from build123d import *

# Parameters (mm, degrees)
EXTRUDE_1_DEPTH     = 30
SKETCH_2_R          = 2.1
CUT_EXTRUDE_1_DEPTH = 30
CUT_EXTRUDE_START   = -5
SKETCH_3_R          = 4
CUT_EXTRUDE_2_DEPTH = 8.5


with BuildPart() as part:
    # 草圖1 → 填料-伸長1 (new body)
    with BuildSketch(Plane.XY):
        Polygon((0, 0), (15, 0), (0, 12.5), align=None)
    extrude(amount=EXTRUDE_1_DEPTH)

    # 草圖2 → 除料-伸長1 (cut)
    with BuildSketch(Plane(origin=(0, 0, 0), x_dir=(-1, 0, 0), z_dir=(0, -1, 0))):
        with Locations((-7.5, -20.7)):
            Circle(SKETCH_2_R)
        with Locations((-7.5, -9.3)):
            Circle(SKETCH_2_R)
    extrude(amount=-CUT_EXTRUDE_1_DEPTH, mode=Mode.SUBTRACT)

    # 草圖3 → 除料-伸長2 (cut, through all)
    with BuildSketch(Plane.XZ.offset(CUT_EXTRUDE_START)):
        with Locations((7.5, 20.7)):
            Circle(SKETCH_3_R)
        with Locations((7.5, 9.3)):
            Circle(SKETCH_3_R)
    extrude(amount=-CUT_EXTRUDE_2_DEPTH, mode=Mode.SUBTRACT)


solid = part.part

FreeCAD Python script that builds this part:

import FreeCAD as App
import Part
import Sketcher

doc = App.newDocument("Part")
body = doc.addObject("PartDesign::Body", "Body")

# Sketch on XY plane
sketch1 = body.newObject("Sketcher::SketchObject", "Sketch")
sketch1.AttachmentSupport = (doc.getObject("XY_Plane"), [""])
sketch1.MapMode = "FlatFace"
sketch1.addGeometry([
    Part.LineSegment(App.Vector(0, 0, 0), App.Vector(15, 0, 0)),
    Part.LineSegment(App.Vector(15, 0, 0), App.Vector(0, 12, 0)),
    Part.LineSegment(App.Vector(0, 12, 0), App.Vector(0, 0, 0)),
], False)
sketch1.addConstraint([
    Sketcher.Constraint("Coincident", 0, 2, 1, 1),
    Sketcher.Constraint("Coincident", 1, 2, 2, 1),
    Sketcher.Constraint("Coincident", 2, 2, 0, 1),
    Sketcher.Constraint("Horizontal", 0),
    Sketcher.Constraint("Vertical", 2),
    Sketcher.Constraint("Coincident", 2, 2, -1, 1),
    Sketcher.Constraint("DistanceX", 0, 1, 0, 2, 15.0),
    Sketcher.Constraint("DistanceY", 2, 2, 2, 1, 12.5),
])
pad1 = body.newObject("PartDesign::Pad", "Pad")
pad1.Profile = sketch1
pad1.Length = 30

# Sketch on XZ plane
sketch2 = body.newObject("Sketcher::SketchObject", "Sketch001")
sketch2.AttachmentSupport = (doc.getObject("XZ_Plane"), [""])
sketch2.MapMode = "FlatFace"
sketch2.addGeometry([
    Part.Circle(App.Vector(7.5, 20.7, 0), App.Vector(0, 0, 1), 2.1),
    Part.Circle(App.Vector(7.5, 9.3, 0), App.Vector(0, 0, 1), 2.1),
], False)
sketch2.addConstraint([
    Sketcher.Constraint("Equal", 0, 1),
    Sketcher.Constraint("Vertical", 0, 3, 1, 3),
    Sketcher.Constraint("Diameter", 0, 4.2),
    Sketcher.Constraint("DistanceX", -1, 1, 0, 3, 7.5),
    Sketcher.Constraint("DistanceY", -1, 1, 0, 3, 20.7),
    Sketcher.Constraint("DistanceY", -1, 1, 1, 3, 9.3),
])
pocket1 = body.newObject("PartDesign::Pocket", "Pocket")
pocket1.Profile = sketch2
pocket1.Length = 30

# Sketch on XZ plane
sketch3 = body.newObject("Sketcher::SketchObject", "Sketch002")
sketch3.AttachmentSupport = (doc.getObject("XZ_Plane"), [""])
sketch3.MapMode = "FlatFace"
sketch3.AttachmentOffset = App.Placement(App.Vector(0, 0, -5), App.Rotation())
sketch3.addGeometry([
    Part.Circle(App.Vector(7.5, 20.7, 0), App.Vector(0, 0, 1), 4),
    Part.Circle(App.Vector(7.5, 9.3, 0), App.Vector(0, 0, 1), 4),
], False)
sketch3.addConstraint([
    Sketcher.Constraint("Equal", 0, 1),
    Sketcher.Constraint("Vertical", 0, 3, 1, 3),
    Sketcher.Constraint("Diameter", 0, 8.0),
    Sketcher.Constraint("DistanceX", -1, 1, 0, 3, 7.5),
    Sketcher.Constraint("DistanceY", -1, 1, 0, 3, 20.7),
    Sketcher.Constraint("DistanceY", -1, 1, 1, 3, 9.3),
])
pocket2 = body.newObject("PartDesign::Pocket", "Pocket001")
pocket2.Profile = sketch3
pocket2.Type = "ThroughAll"

doc.recompute()
